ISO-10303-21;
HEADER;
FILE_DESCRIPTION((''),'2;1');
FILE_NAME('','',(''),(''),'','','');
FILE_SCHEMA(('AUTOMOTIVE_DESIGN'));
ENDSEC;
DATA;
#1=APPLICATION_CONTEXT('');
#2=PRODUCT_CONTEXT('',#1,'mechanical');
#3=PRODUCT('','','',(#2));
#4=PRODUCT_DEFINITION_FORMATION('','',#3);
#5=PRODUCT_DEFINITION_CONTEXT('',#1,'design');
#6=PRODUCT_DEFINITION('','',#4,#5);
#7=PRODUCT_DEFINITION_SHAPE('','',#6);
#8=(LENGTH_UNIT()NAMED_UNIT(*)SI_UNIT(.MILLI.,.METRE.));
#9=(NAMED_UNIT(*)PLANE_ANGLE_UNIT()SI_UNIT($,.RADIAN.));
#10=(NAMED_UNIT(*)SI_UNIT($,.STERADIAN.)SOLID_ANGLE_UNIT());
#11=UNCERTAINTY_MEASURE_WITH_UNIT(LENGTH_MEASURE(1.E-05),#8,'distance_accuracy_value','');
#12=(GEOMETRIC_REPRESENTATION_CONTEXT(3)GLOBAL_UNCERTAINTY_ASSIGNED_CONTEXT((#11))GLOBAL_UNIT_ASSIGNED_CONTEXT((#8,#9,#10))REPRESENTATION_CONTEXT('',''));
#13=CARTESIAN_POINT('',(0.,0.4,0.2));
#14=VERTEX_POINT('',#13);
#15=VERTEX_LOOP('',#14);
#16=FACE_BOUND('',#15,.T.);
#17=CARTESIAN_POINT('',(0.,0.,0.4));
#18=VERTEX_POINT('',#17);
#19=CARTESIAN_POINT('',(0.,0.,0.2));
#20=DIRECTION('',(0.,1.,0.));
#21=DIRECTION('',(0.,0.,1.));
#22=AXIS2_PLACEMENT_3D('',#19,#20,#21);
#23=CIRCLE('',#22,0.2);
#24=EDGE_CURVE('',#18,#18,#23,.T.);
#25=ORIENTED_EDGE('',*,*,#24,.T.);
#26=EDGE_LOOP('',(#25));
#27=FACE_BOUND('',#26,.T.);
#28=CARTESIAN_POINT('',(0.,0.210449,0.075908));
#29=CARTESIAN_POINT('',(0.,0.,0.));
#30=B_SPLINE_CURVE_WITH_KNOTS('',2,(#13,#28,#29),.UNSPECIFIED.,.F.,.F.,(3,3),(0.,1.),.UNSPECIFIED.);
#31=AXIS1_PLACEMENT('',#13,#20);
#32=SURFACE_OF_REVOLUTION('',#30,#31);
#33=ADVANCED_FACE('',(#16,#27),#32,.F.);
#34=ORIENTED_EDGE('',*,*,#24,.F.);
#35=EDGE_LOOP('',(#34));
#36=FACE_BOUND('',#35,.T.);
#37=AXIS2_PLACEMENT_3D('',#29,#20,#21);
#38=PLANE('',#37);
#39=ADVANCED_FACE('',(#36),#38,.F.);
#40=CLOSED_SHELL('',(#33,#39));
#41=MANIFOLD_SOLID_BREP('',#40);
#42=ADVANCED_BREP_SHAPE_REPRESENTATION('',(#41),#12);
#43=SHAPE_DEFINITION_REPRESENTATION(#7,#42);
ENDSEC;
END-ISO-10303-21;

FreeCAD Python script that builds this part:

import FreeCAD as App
import Part
import Sketcher

V = App.Vector

doc = App.newDocument("Part")
body = doc.addObject("PartDesign::Body", "Body")

sketch1 = doc.addObject("Sketcher::SketchObject", "Sketch")
body.addObject(sketch1)
sketch1.AttachmentSupport = (doc.YZ_Plane, [""])
sketch1.MapMode = "FlatFace"
sketch1.addGeometry([
    Part.LineSegment(V(0.4, 0.2, 0), V(0, 0.2, 0)),
    Part.LineSegment(V(0, 0.2, 0), V(0, 0, 0)),
    Part.BSplineCurve([V(0.4, 0.2, 0), V(0.210449, 0.075908, 0), V(0, 0, 0)], [3, 3], [0, 1], False, 2, [1, 1, 1], False),
], False)
sketch1.addGeometry(Part.LineSegment(V(0.4, 0.2, 0), V(0, 0.2, 0)), True)
sketch1.addConstraint([
    Sketcher.Constraint("Block", 2),
    Sketcher.Constraint("Coincident", 0, 2, 1, 1),
    Sketcher.Constraint("Coincident", 1, 2, 2, 2),
    Sketcher.Constraint("Coincident", 2, 1, 0, 1),
    Sketcher.Constraint("Horizontal", 0),
    Sketcher.Constraint("Vertical", 1),
    Sketcher.Constraint("Horizontal", 3),
    Sketcher.Constraint("Coincident", 3, 2, 0, 2),
    Sketcher.Constraint("Equal", 0, 3),
])
revolution = doc.addObject("PartDesign::Revolution", "Revolution")
body.addObject(revolution)
revolution.Profile = sketch1
revolution.ReferenceAxis = (sketch1, ["Axis0"])
revolution.Angle = 360

doc.recompute()
